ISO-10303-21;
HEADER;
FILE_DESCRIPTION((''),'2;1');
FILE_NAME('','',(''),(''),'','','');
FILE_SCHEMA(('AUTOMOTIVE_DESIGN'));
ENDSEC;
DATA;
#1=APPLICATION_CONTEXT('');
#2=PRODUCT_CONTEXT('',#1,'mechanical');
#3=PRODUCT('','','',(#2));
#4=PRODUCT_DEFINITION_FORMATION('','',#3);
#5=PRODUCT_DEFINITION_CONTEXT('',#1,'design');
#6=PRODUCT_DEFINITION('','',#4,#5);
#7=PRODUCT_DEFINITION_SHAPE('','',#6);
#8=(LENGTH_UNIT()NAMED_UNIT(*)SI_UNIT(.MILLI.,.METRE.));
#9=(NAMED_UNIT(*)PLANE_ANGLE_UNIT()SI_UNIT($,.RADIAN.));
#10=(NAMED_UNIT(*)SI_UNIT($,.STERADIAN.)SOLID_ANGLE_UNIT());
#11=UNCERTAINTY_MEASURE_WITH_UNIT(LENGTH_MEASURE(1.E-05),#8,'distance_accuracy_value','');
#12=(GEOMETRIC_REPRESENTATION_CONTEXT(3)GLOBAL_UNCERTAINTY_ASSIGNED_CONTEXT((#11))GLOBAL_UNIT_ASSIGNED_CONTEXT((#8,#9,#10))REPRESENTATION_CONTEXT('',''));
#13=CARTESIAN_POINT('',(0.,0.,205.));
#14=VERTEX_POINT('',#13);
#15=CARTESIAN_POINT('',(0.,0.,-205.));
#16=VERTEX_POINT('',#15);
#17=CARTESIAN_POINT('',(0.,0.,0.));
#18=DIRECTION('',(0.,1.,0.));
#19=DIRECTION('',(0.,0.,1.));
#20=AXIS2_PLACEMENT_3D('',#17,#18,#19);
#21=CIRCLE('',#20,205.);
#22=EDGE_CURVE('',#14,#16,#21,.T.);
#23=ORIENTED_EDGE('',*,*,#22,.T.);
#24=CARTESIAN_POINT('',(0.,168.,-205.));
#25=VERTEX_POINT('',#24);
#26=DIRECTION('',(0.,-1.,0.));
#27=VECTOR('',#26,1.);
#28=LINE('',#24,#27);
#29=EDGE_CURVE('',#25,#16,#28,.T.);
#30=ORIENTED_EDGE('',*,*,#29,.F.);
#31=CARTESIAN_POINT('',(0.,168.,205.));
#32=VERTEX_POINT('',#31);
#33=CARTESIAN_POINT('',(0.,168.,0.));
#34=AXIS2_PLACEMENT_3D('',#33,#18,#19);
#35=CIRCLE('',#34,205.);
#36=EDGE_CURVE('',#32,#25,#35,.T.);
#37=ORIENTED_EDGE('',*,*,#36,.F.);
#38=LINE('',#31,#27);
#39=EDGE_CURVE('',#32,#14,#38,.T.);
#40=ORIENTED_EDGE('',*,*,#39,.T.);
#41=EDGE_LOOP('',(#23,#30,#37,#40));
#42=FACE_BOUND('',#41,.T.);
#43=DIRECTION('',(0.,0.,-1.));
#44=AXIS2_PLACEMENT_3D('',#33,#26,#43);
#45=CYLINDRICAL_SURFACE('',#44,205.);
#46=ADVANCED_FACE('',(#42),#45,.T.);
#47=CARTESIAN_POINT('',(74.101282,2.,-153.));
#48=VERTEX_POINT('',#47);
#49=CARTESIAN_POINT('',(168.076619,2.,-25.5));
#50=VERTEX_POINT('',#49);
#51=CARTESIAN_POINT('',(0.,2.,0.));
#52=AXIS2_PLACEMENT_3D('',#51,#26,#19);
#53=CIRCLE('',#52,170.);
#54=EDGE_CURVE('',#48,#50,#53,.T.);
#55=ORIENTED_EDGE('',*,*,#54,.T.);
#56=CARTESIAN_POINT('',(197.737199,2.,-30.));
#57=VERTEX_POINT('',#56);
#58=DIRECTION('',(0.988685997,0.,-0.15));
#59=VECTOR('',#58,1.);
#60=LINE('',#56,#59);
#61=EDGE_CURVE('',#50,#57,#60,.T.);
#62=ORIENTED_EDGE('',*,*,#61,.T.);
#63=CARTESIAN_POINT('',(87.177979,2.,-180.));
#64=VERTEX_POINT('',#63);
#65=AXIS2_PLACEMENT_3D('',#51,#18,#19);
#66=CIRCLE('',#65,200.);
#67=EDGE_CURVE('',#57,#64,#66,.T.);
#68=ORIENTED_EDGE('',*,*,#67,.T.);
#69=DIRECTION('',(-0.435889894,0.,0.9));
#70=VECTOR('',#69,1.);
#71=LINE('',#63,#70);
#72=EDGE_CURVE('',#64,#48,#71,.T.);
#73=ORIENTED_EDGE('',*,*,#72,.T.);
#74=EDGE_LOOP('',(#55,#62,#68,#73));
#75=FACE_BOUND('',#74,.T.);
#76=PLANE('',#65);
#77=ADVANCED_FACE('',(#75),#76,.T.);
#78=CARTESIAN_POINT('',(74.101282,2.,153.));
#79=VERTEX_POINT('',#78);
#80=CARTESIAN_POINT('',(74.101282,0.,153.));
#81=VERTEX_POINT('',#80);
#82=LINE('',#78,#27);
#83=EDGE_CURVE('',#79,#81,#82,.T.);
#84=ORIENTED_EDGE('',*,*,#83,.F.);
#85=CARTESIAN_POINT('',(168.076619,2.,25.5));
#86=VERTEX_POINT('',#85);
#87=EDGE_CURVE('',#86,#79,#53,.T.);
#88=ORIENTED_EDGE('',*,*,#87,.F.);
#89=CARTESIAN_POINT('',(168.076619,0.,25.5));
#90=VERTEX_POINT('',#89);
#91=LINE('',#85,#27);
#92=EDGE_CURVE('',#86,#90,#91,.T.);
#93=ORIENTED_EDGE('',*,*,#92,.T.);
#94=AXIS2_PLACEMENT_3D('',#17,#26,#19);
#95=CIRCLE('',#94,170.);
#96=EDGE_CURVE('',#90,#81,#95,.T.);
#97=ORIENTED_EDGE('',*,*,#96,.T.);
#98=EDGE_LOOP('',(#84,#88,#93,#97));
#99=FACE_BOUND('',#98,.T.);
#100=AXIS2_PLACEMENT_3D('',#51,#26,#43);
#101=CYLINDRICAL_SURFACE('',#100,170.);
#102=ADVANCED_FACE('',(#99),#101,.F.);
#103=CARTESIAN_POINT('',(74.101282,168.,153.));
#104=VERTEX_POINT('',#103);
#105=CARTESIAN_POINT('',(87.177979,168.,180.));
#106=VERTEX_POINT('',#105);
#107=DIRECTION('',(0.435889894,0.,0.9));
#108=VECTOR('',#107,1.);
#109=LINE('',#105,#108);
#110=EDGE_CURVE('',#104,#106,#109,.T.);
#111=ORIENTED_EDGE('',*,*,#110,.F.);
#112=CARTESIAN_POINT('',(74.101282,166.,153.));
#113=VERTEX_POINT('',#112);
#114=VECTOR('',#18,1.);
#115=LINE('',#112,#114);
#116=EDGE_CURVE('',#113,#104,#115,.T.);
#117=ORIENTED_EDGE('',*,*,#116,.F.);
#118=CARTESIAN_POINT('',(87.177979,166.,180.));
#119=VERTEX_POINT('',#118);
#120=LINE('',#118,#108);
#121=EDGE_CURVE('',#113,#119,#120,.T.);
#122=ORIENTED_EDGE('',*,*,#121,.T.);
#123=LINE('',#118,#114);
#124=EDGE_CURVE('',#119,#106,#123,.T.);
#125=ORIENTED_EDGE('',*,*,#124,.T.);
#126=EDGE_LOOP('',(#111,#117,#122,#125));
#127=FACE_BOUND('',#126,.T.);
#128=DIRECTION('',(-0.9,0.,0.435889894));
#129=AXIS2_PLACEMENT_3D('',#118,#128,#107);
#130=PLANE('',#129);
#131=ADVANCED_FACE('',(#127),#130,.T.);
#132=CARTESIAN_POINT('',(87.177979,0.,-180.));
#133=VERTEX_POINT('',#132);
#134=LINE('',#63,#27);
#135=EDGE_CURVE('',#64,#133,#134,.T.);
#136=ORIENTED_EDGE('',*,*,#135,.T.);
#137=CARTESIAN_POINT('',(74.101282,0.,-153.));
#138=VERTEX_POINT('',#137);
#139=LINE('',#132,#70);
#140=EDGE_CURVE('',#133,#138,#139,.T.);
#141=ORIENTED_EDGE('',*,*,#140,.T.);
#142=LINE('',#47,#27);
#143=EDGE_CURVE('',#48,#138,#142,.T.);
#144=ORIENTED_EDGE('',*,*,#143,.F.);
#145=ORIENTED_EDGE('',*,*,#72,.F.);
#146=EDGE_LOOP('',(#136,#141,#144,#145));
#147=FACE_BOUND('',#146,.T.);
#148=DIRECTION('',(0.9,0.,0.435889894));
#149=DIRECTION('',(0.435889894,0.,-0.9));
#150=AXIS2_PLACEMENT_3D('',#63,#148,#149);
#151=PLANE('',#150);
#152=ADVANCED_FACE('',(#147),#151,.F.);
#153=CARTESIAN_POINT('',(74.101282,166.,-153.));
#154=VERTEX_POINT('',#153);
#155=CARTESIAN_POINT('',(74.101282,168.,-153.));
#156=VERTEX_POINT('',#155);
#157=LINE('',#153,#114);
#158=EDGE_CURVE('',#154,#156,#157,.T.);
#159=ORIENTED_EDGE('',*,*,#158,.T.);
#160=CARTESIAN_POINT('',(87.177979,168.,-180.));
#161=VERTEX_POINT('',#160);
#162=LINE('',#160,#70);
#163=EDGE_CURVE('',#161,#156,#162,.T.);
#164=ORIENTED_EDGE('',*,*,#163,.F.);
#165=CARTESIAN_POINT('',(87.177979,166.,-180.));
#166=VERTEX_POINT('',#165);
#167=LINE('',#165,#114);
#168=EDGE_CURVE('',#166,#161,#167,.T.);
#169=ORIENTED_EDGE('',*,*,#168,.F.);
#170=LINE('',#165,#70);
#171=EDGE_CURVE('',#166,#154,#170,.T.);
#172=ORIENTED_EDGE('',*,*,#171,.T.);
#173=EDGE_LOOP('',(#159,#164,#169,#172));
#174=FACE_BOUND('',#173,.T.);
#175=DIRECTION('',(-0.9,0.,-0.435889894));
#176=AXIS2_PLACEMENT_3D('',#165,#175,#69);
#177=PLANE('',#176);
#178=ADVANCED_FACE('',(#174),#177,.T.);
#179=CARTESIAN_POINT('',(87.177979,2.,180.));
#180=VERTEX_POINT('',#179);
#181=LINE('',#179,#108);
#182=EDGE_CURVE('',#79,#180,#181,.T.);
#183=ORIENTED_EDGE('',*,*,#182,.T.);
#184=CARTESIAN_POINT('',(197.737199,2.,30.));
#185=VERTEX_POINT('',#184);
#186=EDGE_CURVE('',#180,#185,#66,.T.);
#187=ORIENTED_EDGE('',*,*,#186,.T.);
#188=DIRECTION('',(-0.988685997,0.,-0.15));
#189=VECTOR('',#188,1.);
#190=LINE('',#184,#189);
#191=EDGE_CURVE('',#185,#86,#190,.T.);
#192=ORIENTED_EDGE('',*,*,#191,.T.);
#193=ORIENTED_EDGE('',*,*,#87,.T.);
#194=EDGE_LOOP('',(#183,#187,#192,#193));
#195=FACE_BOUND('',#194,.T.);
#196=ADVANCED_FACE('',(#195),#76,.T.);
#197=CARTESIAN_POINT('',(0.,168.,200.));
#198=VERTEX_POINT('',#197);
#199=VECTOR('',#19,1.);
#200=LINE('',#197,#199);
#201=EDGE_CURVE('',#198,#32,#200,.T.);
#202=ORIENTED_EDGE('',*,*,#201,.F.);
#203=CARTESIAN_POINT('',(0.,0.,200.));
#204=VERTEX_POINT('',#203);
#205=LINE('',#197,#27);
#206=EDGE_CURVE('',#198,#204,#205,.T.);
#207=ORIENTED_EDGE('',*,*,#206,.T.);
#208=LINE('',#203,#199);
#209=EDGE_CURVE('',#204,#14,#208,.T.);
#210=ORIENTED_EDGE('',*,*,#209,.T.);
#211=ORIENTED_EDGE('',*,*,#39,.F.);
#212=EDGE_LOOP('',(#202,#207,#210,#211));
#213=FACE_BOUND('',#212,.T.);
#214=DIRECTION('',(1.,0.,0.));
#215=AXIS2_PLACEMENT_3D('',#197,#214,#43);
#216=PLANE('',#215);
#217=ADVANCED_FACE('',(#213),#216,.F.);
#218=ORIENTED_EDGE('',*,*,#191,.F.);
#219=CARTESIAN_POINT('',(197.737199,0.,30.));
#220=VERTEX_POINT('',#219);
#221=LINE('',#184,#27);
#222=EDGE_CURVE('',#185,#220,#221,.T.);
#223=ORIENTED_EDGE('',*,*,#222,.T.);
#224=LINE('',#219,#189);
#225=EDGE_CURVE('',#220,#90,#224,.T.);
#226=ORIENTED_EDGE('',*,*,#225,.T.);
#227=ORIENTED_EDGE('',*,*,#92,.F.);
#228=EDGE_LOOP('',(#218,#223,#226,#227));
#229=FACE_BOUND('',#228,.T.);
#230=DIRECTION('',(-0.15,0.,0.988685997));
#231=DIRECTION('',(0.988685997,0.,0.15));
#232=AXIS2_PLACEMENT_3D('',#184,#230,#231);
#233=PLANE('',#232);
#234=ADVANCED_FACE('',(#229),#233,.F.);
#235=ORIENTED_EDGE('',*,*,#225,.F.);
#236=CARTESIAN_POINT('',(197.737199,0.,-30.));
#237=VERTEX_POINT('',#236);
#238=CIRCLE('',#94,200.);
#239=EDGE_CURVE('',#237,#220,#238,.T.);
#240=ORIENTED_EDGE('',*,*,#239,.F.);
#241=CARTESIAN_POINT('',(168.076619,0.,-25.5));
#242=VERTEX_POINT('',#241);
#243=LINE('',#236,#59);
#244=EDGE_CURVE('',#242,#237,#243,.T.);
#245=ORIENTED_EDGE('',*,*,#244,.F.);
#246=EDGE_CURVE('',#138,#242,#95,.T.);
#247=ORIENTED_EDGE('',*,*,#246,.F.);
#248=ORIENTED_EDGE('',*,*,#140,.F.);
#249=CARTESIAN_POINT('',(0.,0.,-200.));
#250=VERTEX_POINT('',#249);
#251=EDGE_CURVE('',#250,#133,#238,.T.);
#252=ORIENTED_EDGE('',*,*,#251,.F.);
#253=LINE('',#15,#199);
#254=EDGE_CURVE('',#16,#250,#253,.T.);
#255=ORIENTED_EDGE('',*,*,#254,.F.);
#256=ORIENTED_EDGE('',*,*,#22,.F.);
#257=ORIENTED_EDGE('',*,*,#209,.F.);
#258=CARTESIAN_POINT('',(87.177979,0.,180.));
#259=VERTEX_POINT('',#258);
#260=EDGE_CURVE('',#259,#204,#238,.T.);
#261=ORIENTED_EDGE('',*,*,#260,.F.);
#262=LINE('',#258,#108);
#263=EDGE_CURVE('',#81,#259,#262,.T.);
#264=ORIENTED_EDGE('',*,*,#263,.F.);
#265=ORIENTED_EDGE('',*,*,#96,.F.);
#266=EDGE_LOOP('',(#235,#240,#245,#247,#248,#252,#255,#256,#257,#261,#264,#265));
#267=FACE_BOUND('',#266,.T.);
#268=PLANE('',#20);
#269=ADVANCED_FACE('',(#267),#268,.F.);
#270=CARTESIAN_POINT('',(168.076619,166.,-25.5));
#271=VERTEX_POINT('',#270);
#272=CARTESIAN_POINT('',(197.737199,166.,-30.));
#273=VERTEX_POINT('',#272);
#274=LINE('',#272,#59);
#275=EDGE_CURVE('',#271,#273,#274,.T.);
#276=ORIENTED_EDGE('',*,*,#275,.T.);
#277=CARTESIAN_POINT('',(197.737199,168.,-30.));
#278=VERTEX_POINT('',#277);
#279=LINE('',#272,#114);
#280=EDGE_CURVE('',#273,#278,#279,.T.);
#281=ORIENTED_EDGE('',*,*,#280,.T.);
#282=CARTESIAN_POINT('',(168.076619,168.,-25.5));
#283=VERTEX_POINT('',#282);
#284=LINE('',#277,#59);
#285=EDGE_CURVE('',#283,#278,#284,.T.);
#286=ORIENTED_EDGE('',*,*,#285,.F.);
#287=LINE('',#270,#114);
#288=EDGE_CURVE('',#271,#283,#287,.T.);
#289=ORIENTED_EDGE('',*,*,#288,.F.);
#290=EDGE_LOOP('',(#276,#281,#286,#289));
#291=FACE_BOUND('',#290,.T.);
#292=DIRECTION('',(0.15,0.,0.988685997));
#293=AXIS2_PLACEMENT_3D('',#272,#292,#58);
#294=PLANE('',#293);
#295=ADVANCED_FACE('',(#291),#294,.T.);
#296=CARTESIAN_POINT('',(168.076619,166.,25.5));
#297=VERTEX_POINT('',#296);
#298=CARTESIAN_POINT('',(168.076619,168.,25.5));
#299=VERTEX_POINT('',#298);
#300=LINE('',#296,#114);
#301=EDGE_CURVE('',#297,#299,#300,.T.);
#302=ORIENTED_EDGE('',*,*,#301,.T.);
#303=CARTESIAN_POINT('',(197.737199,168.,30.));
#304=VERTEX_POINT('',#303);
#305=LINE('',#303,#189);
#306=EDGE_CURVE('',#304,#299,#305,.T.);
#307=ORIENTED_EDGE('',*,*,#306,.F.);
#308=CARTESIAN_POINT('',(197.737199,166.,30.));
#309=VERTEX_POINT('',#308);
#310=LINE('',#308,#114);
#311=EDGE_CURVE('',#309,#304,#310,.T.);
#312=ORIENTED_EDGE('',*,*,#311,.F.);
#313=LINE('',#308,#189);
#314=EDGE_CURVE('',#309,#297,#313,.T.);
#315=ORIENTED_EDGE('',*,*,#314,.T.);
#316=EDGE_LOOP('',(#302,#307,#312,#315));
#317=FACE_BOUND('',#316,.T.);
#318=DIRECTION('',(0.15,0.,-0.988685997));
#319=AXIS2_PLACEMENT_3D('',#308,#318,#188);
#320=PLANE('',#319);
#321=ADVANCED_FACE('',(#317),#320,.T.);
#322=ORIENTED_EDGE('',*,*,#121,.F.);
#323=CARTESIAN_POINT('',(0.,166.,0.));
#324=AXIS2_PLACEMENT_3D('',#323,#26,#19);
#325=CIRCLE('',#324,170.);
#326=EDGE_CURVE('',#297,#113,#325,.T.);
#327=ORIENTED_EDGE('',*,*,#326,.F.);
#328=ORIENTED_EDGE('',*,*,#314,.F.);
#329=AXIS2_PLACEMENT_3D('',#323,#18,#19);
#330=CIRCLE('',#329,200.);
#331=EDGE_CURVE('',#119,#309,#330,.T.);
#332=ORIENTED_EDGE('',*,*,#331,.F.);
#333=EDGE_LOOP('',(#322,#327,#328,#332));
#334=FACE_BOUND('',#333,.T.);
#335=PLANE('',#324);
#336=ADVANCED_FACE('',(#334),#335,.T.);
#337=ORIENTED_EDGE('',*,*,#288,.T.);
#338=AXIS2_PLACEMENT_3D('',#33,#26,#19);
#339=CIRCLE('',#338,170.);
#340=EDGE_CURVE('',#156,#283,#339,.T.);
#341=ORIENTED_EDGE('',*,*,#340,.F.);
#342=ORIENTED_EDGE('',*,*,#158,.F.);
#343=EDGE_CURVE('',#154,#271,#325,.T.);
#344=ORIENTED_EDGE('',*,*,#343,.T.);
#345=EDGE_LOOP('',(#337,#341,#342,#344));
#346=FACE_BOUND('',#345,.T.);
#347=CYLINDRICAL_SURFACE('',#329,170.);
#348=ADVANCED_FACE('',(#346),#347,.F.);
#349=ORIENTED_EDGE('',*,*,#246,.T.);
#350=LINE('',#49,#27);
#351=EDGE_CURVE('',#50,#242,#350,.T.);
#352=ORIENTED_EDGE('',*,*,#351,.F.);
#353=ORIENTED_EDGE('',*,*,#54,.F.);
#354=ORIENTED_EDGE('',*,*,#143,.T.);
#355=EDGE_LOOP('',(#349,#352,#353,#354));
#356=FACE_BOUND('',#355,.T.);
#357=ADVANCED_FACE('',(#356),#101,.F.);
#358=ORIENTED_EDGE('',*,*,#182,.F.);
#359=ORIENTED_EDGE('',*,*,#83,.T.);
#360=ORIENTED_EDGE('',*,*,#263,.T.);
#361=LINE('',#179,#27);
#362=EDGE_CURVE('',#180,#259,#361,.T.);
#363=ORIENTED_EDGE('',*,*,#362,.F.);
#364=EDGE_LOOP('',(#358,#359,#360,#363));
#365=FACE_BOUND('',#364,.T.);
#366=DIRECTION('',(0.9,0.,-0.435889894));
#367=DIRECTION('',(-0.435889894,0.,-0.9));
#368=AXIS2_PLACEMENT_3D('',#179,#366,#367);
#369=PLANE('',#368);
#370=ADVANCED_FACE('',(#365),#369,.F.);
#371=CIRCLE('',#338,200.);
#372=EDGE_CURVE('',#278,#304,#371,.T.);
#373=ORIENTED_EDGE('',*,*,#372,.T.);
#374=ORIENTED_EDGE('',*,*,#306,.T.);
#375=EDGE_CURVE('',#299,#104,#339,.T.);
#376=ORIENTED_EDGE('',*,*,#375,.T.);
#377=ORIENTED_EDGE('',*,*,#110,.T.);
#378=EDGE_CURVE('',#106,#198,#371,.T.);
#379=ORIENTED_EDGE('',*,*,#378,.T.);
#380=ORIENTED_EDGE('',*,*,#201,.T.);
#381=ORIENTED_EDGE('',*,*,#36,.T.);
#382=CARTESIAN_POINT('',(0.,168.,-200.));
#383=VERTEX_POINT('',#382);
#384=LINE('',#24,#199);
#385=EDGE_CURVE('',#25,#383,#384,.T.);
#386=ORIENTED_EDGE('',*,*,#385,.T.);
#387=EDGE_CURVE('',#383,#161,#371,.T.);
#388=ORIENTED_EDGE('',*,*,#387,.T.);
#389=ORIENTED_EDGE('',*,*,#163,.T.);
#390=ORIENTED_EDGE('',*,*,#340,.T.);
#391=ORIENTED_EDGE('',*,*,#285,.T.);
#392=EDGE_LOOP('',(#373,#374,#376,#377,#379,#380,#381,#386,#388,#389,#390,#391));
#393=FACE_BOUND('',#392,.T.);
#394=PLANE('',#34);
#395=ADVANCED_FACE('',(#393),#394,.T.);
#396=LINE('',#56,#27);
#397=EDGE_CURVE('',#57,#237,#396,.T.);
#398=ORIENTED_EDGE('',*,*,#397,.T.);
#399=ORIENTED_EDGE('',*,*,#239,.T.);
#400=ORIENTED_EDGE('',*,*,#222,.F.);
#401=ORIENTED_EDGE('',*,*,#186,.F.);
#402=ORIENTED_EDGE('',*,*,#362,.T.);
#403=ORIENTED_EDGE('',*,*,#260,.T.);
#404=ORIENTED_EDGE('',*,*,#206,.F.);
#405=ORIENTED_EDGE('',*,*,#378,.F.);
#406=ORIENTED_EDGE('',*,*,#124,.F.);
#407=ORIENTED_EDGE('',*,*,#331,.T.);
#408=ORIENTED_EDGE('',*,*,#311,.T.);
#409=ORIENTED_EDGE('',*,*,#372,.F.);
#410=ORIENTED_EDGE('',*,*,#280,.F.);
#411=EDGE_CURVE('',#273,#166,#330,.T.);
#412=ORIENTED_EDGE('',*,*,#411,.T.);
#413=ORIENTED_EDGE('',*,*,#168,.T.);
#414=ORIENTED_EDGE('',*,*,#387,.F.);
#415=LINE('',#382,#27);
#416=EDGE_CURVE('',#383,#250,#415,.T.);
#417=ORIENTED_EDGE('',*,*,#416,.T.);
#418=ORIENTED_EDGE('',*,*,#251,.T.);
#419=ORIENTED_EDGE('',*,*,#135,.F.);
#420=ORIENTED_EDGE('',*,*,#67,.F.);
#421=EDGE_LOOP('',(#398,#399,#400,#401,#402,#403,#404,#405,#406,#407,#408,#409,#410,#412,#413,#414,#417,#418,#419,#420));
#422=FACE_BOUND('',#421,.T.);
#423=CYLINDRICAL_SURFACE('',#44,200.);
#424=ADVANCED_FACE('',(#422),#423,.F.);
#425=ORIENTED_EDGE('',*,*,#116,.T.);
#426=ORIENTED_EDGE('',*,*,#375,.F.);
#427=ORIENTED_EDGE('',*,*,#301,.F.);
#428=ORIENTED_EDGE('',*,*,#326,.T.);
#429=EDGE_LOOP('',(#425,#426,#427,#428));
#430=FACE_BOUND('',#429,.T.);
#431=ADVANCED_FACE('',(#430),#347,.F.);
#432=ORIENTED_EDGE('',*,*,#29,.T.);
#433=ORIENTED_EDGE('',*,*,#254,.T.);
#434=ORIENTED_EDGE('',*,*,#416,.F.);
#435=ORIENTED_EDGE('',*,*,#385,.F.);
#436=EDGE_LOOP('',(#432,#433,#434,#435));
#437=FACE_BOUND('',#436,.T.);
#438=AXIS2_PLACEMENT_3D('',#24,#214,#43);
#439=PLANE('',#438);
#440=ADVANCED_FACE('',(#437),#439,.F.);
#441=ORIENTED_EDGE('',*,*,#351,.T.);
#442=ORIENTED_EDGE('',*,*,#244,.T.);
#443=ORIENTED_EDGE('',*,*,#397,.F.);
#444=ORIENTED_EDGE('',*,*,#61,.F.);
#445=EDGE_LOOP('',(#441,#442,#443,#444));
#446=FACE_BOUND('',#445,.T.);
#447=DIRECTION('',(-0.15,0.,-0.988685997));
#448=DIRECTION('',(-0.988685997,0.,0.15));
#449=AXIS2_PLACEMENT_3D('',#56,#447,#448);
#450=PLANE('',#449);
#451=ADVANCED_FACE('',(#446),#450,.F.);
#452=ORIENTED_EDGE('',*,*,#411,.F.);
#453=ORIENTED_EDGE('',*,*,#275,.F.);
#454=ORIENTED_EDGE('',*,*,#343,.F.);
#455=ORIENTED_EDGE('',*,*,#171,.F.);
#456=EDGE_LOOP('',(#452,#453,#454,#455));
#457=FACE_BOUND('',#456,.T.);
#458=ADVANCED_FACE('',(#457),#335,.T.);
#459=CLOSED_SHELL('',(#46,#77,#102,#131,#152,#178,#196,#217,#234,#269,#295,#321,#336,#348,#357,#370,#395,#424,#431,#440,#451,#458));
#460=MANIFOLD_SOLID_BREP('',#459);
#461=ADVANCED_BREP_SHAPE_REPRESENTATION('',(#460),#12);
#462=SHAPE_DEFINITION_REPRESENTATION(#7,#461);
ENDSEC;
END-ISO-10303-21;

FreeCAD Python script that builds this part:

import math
import FreeCAD as App
import Part
import Sketcher

V = App.Vector
Q = App.Units.Quantity

doc = App.newDocument("Part")
params = doc.addObject("Spreadsheet::Sheet", "Params")
for row, (alias, value) in enumerate([
    ("sketch1_radius", "200 mm"),
    ("sketch1_radius2", "205 mm"),
    ("pad1_length", "168 mm"),
    ("sketch2_radius", "200 mm"),
    ("sketch2_radius2", "170 mm"),
    ("pad2_length", "2 mm"),
], start=1):
    params.set(f"A{row}", alias)
    params.set(f"B{row}", "=" + value)
    params.setAlias(f"B{row}", alias)

body = doc.addObject("PartDesign::Body", "Body")

# Sketch on XZ plane
sketch1 = body.newObject("Sketcher::SketchObject", "Sketch")
sketch1.AttachmentSupport = (doc.getObject("XZ_Plane"), [""])
sketch1.MapMode = "FlatFace"
sketch1.addGeometry([
    Part.LineSegment(V(0, -205, 0), V(0, -200, 0)),
    Part.ArcOfCircle(Part.Circle(V(0, 0, 0), V(0, 0, 1), 200), math.radians(-90), math.radians(90)),
    Part.LineSegment(V(0, 200, 0), V(0, 205, 0)),
    Part.ArcOfCircle(Part.Circle(V(0, 0, 0), V(0, 0, 1), 205), math.radians(-90), math.radians(90)),
], False)
sketch1.addConstraint([
    Sketcher.Constraint("Coincident", 0, 2, 1, 1),
    Sketcher.Constraint("Coincident", 1, 2, 2, 1),
    Sketcher.Constraint("Coincident", 2, 2, 3, 2),
    Sketcher.Constraint("Coincident", 3, 1, 0, 1),
    Sketcher.Constraint("Vertical", 0),
    Sketcher.Constraint("Vertical", 2),
    Sketcher.Constraint("Coincident", 1, 3, -1, 1),
    Sketcher.Constraint("Coincident", 3, 3, -1, 1),
    Sketcher.Constraint("PointOnObject", 0, 2, -2),
    Sketcher.Constraint("PointOnObject", 1, 2, -2),
    Sketcher.Constraint("Radius", 1, Q("200 mm")),
    Sketcher.Constraint("Radius", 3, Q("205 mm")),
])
sketch1.setExpression("Constraints[10]", "Params.sketch1_radius")
sketch1.setExpression("Constraints[11]", "Params.sketch1_radius2")
pad1 = body.newObject("PartDesign::Pad", "Pad")
pad1.Profile = sketch1
pad1.setExpression("Length", "Params.pad1_length")
pad1.Reversed = True

# Sketch on XZ plane
sketch2 = body.newObject("Sketcher::SketchObject", "Sketch001")
sketch2.AttachmentSupport = (doc.getObject("XZ_Plane"), [""])
sketch2.MapMode = "FlatFace"
sketch2.addGeometry([
    Part.LineSegment(V(74, 153, 0), V(87, 180, 0)),  # 0
    Part.ArcOfCircle(Part.Circle(V(0, 0, 0), V(0, 0, 1), 200), math.radians(9), math.radians(64)),  # 1
    Part.LineSegment(V(198, 30, 0), V(168, 26, 0)),  # 2
    Part.ArcOfCircle(Part.Circle(V(0, 0, 0), V(0, 0, 1), 170), math.radians(9), math.radians(64)),  # 3
    Part.LineSegment(V(168, -26, 0), V(198, -30, 0)),  # 4
    Part.ArcOfCircle(Part.Circle(V(0, 0, 0), V(0, 0, 1), 200), math.radians(-64), math.radians(-9)),  # 5
    Part.LineSegment(V(87, -180, 0), V(74, -153, 0)),  # 6
    Part.ArcOfCircle(Part.Circle(V(0, 0, 0), V(0, 0, 1), 170), math.radians(-64), math.radians(-9)),  # 7
], False)
sketch2.addConstraint([
    Sketcher.Constraint("Coincident", 0, 2, 1, 2),
    Sketcher.Constraint("Coincident", 1, 1, 2, 1),
    Sketcher.Constraint("Coincident", 2, 2, 3, 1),
    Sketcher.Constraint("Coincident", 3, 2, 0, 1),
    Sketcher.Constraint("Coincident", 4, 2, 5, 2),
    Sketcher.Constraint("Coincident", 5, 1, 6, 1),
    Sketcher.Constraint("Coincident", 6, 2, 7, 1),
    Sketcher.Constraint("Coincident", 7, 2, 4, 1),
    Sketcher.Constraint("Coincident", 1, 3, -1, 1),
    Sketcher.Constraint("Coincident", 3, 3, -1, 1),
    Sketcher.Constraint("Coincident", 5, 3, -1, 1),
    Sketcher.Constraint("Coincident", 7, 3, -1, 1),
    Sketcher.Constraint("Equal", 1, 5),
    Sketcher.Constraint("Equal", 3, 7),
    Sketcher.Constraint("Vertical", 1, 1, 4, 2),
    Sketcher.Constraint("Vertical", 0, 2, 5, 1),
    Sketcher.Constraint("Vertical", 3, 2, 6, 2),
    Sketcher.Constraint("Vertical", 2, 2, 7, 2),
    Sketcher.Constraint("Radius", 1, Q("200 mm")),
    Sketcher.Constraint("Radius", 3, Q("170 mm")),
    Sketcher.Constraint("DistanceY", -1, 1, 0, 2, Q("180 mm")),
    Sketcher.Constraint("DistanceY", -1, 1, 1, 1, Q("30 mm")),
    Sketcher.Constraint("DistanceY", -1, 1, 3, 2, Q("153 mm")),
    Sketcher.Constraint("DistanceY", 7, 2, 2, 2, Q("51 mm")),
])
sketch2.setExpression("Constraints[18]", "Params.sketch2_radius")
sketch2.setExpression("Constraints[19]", "Params.sketch2_radius2")
pad2 = body.newObject("PartDesign::Pad", "Pad001")
pad2.Profile = sketch2
pad2.setExpression("Length", "Params.pad2_length")
pad2.Reversed = True
doc.recompute()

datumplane = body.newObject("PartDesign::Plane", "DatumPlane")
datumplane.AttachmentSupport = (doc.getObject("XZ_Plane"), [""])
datumplane.MapMode = "FlatFace"
datumplane.AttachmentOffset = App.Placement(V(0, 0, -84), App.Rotation())
mirrored = body.newObject("PartDesign::Mirrored", "Mirrored")
mirrored.Originals = [pad2]
mirrored.MirrorPlane = (datumplane, [""])
body.Tip = mirrored

doc.recompute()
